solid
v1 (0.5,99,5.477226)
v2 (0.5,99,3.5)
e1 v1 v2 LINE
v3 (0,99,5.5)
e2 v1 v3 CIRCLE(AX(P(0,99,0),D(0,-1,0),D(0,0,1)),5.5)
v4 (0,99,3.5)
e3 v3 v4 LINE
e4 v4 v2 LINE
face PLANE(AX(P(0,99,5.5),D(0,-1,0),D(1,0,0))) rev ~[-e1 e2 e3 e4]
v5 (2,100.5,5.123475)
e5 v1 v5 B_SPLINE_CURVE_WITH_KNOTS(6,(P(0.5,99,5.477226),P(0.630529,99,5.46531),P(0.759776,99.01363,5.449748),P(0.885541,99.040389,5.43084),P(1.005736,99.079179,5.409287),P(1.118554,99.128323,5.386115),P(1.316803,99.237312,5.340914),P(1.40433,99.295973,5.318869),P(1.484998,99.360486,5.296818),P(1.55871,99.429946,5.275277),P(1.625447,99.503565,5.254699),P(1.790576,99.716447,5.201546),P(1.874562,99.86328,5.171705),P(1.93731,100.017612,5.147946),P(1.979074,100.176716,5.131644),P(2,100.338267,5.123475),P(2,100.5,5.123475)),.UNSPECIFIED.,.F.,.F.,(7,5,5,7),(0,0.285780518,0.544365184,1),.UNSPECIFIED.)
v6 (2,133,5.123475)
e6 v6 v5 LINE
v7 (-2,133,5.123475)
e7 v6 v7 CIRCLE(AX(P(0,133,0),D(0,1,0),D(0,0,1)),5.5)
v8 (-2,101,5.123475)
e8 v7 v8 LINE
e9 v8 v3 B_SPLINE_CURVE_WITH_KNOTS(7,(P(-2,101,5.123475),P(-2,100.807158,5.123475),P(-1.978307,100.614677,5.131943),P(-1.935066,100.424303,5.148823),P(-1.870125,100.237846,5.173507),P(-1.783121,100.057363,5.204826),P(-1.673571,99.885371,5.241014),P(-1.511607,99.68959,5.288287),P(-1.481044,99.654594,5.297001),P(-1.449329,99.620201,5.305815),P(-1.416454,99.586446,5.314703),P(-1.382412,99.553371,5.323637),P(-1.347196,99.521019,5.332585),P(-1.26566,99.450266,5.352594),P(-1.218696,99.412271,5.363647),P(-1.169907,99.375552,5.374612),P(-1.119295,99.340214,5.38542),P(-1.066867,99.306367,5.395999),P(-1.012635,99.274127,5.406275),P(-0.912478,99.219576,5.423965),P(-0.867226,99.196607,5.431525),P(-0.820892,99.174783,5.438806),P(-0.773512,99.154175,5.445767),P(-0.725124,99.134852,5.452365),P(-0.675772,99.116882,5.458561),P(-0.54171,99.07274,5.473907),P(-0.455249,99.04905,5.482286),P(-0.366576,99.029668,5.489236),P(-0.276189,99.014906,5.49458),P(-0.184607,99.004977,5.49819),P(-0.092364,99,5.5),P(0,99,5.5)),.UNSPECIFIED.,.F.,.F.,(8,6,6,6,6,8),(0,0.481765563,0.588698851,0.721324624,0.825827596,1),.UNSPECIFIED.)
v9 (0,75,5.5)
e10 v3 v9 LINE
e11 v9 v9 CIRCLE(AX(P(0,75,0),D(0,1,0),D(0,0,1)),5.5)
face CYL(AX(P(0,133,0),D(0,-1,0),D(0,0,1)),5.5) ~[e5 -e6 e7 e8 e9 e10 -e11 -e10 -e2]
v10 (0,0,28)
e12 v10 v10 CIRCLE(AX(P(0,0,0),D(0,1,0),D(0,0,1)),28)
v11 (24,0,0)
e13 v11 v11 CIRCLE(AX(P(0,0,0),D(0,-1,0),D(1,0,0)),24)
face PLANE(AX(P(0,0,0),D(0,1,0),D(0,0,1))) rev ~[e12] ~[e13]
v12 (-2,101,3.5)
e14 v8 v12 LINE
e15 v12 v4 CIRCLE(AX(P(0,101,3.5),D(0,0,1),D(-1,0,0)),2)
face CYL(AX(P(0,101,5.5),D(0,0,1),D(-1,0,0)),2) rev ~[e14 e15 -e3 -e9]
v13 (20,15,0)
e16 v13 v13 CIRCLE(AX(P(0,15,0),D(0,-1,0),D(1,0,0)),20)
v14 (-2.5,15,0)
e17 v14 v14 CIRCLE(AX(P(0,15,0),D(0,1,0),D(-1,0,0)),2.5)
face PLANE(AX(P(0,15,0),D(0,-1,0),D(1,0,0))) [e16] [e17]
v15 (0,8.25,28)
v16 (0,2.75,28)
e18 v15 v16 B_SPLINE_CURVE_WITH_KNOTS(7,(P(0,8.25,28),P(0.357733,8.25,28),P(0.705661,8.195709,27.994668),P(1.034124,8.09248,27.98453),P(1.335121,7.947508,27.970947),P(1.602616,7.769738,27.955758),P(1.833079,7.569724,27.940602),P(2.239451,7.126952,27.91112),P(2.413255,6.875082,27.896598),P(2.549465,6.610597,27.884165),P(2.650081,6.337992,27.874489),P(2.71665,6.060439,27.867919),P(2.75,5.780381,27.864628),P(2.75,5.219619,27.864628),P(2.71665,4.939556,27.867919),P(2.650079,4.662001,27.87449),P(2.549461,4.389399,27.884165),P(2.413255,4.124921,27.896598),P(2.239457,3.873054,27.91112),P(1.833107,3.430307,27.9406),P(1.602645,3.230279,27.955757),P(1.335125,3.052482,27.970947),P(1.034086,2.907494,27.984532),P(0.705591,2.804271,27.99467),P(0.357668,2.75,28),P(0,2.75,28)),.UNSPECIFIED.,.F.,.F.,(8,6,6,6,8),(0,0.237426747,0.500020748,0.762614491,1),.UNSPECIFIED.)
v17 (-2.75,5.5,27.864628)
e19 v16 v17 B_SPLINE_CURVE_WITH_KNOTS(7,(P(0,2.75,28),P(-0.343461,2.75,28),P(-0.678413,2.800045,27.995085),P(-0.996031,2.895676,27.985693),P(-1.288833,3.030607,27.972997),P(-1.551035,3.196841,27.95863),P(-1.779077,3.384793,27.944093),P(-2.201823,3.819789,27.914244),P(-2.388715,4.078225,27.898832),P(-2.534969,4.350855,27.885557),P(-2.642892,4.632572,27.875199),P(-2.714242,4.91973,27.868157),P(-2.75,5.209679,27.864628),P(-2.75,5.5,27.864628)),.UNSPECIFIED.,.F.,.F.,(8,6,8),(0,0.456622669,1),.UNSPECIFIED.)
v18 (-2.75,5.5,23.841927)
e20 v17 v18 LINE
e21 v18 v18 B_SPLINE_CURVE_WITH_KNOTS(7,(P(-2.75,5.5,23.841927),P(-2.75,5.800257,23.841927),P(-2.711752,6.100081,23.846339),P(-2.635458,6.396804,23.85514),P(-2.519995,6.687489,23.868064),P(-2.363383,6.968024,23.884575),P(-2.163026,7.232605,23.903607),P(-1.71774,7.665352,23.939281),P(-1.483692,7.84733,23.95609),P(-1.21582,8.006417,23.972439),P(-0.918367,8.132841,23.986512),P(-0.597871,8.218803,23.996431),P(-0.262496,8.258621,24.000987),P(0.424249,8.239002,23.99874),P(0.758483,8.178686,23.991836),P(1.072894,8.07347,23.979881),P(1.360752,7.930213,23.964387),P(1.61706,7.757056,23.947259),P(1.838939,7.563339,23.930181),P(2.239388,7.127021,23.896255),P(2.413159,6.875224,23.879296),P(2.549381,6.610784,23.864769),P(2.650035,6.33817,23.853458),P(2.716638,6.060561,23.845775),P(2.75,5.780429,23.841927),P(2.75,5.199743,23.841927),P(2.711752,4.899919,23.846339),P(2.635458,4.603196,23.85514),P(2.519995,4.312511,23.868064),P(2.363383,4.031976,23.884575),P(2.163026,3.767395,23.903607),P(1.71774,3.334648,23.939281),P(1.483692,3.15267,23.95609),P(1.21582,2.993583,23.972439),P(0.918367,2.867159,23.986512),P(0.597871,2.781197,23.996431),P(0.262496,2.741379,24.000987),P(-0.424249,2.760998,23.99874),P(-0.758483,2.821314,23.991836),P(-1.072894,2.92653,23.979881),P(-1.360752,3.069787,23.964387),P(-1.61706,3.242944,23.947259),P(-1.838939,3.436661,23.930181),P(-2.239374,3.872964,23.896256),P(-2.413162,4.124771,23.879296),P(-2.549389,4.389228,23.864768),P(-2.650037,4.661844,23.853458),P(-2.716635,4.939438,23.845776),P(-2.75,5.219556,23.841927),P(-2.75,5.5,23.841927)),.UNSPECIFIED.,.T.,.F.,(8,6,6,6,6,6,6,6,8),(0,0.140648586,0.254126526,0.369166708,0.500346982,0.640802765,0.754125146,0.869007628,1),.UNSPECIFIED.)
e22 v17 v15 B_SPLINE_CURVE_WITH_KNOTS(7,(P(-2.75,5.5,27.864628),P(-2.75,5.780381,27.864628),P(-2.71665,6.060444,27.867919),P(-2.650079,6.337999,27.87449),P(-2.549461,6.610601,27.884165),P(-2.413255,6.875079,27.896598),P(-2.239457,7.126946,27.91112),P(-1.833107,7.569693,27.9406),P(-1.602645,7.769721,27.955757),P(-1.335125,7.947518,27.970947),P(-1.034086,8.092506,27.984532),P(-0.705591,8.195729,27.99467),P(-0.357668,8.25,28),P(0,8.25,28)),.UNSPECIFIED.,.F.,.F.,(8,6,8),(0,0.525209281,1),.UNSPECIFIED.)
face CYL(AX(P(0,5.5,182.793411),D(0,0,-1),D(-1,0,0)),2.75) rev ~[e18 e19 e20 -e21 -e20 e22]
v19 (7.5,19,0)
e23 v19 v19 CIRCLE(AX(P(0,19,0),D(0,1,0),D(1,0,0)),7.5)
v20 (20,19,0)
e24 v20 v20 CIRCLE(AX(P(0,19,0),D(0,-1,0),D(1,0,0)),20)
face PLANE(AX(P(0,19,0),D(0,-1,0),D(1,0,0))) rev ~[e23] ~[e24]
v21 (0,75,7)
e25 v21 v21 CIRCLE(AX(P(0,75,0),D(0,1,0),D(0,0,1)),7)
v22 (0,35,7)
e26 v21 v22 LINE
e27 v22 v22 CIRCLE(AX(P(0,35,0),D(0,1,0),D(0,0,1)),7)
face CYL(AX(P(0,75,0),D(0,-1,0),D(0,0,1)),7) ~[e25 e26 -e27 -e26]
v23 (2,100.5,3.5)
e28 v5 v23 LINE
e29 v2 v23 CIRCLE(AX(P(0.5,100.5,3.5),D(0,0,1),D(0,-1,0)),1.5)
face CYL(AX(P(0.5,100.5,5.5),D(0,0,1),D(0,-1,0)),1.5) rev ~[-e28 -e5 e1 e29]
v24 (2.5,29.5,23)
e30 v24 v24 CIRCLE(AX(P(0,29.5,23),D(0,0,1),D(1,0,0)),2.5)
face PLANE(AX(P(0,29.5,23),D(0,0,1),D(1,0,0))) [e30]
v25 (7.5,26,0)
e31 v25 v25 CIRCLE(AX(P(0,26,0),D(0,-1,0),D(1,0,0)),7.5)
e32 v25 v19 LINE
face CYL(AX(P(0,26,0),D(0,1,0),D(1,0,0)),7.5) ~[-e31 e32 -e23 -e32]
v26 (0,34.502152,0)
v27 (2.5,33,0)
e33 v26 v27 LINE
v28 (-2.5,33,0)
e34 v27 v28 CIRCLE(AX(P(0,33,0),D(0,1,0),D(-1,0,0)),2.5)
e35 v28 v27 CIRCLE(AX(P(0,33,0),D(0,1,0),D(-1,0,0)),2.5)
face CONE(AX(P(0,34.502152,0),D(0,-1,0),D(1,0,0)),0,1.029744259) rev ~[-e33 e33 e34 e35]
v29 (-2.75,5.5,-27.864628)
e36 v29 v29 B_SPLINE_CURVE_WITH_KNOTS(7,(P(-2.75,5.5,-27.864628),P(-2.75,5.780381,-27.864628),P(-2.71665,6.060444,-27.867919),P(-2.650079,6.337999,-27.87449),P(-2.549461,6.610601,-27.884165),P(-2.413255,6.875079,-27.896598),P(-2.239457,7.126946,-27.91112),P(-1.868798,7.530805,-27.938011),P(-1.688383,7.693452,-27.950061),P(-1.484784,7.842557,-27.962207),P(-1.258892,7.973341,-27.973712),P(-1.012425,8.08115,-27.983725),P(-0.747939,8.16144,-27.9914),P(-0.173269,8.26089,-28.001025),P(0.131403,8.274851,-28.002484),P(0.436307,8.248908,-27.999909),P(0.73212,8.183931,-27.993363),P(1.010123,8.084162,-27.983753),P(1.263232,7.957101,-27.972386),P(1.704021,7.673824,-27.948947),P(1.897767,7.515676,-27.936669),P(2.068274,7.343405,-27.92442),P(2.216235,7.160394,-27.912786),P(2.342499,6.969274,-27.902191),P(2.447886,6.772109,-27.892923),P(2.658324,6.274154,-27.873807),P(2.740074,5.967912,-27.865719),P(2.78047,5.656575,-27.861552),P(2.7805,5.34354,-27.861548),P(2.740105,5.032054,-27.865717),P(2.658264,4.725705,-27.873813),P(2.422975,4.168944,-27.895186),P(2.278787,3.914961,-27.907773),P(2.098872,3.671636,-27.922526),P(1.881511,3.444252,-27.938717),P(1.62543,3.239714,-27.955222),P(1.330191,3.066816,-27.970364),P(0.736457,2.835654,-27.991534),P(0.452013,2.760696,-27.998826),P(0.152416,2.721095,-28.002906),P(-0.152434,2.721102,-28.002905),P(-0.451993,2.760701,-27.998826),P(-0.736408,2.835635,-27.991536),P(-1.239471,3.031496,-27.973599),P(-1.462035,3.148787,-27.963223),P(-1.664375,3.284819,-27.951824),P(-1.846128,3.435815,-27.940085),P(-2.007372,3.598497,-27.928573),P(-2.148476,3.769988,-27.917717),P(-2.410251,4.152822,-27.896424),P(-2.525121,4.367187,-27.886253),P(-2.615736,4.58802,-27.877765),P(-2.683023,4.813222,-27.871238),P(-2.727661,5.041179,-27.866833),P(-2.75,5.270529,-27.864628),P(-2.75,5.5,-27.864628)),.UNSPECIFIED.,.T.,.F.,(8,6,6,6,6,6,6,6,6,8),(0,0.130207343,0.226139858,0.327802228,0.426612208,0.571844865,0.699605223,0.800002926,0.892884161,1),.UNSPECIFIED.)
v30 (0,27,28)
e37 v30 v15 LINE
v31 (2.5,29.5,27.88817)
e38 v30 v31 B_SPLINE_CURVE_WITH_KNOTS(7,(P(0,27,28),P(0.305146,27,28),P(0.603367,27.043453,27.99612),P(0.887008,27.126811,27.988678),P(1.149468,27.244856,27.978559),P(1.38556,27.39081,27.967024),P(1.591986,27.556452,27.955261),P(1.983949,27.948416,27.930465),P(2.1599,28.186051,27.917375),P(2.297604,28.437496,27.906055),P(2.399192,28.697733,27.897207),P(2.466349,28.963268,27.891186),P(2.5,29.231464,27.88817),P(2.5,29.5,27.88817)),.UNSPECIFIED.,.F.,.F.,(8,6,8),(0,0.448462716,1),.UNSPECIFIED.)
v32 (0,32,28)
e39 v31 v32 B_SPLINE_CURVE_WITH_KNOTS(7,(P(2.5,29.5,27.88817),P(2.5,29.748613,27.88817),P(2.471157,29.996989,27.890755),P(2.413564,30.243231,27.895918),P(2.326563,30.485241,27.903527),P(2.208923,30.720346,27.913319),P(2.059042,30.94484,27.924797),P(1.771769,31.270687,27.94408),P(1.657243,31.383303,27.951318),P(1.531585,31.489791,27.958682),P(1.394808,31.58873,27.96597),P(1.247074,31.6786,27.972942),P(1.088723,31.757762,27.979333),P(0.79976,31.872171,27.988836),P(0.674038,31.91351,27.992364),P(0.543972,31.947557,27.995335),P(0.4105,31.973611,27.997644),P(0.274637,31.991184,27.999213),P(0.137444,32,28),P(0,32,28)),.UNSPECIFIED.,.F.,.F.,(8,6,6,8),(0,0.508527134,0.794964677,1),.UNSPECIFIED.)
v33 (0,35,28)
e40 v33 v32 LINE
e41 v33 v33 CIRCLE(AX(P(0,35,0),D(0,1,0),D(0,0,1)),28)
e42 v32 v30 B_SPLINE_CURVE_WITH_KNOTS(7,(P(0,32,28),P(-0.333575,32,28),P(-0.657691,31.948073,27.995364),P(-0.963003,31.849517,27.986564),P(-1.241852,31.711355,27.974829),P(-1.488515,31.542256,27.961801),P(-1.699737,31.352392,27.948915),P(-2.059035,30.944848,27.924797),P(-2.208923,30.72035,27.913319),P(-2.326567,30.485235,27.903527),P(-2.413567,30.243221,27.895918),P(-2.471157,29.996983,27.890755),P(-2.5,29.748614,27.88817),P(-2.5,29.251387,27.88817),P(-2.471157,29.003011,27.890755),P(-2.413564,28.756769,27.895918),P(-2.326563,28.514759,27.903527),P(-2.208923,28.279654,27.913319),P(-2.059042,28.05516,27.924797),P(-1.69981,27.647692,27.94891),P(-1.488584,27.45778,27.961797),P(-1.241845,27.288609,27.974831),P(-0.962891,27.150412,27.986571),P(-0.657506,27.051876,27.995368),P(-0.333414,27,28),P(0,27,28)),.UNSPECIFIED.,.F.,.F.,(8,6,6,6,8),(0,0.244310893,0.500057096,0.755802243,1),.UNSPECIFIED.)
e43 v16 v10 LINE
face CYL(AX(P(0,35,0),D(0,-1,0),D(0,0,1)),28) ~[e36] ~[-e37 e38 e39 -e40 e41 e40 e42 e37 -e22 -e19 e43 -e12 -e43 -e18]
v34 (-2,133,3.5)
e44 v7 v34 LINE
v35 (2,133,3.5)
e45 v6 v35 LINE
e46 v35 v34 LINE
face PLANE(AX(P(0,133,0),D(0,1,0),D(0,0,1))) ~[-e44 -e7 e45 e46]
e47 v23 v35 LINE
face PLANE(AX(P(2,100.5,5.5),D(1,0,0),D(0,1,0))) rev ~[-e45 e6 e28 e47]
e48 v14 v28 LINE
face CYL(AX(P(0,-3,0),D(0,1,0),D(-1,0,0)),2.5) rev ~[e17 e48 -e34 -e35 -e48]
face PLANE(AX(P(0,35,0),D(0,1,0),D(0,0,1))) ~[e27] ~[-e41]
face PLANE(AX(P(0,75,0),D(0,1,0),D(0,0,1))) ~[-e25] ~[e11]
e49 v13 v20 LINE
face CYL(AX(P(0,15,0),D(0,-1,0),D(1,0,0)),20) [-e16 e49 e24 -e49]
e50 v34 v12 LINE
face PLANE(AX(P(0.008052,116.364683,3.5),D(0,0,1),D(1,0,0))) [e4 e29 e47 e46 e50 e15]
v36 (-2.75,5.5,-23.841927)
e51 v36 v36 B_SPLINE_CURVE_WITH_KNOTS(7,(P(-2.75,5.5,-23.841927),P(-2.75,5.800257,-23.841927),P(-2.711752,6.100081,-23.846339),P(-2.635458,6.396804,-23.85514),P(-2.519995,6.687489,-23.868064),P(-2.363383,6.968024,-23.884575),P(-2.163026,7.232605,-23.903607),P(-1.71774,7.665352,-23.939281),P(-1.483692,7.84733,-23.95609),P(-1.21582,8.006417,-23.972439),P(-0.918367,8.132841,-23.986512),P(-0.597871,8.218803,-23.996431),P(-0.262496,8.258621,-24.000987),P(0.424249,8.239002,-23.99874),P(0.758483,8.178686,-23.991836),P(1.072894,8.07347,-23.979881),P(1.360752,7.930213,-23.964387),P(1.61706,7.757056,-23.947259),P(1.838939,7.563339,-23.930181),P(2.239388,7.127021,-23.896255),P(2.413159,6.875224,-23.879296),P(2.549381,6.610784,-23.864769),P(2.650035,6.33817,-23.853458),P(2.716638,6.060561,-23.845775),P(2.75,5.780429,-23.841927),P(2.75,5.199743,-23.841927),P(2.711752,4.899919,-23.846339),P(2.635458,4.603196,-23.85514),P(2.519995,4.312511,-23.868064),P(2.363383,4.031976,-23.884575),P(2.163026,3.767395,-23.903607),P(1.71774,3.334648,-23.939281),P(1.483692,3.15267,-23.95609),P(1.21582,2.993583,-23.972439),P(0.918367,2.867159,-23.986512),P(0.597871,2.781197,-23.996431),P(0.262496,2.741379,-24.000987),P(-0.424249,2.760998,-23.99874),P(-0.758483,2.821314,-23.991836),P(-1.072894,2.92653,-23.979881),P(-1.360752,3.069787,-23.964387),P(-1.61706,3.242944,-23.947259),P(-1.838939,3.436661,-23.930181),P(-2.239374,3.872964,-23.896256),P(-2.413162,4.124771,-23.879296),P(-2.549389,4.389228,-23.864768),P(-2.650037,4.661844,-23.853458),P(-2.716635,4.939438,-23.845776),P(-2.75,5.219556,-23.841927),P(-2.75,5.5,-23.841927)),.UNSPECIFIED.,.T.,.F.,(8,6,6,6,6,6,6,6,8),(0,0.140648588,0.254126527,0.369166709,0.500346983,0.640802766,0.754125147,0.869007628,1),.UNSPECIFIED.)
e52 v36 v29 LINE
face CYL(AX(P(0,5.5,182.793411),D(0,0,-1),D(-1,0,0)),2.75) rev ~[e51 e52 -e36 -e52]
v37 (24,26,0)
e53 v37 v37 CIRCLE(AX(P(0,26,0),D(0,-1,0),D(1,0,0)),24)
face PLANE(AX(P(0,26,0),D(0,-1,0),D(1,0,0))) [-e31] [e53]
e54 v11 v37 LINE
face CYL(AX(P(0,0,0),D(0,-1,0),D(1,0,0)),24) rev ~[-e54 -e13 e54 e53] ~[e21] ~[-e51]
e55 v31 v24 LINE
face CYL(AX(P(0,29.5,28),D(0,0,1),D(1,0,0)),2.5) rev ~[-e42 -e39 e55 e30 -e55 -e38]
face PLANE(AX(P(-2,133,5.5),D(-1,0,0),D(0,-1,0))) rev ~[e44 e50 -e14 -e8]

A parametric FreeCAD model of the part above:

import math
import FreeCAD as App
import Part
import Sketcher

V = App.Vector
Q = App.Units.Quantity


def add_polygon(sketch, points):
    """Adds a closed chain of lines whose ends are joined by coincident constraints."""
    first, n = sketch.GeometryCount, len(points)
    for a, b in zip(points, points[1:] + points[:1]):
        sketch.addGeometry(Part.LineSegment(App.Vector(*a, 0), App.Vector(*b, 0)), False)
    for i in range(n):
        sketch.addConstraint(Sketcher.Constraint("Coincident", first + i, 2, first + (i + 1) % n, 1))

doc = App.newDocument("Part")
body = doc.addObject("PartDesign::Body", "Body")

# Sketch on YZ plane
sketch1 = body.newObject("Sketcher::SketchObject", "Sketch")
sketch1.AttachmentSupport = (doc.getObject("YZ_Plane"), [""])
sketch1.MapMode = "FlatFace"
add_polygon(sketch1, [(0, 28), (0, 0), (133, 0), (133, 5.5), (75, 5.5), (75, 7), (35, 7), (35, 28)])  # lines 0-7
sketch1.addConstraint([
    Sketcher.Constraint("Vertical", 0),
    Sketcher.Constraint("Horizontal", 1),
    Sketcher.Constraint("Vertical", 2),
    Sketcher.Constraint("Horizontal", 3),
    Sketcher.Constraint("Vertical", 4),
    Sketcher.Constraint("Horizontal", 5),
    Sketcher.Constraint("Vertical", 6),
    Sketcher.Constraint("Horizontal", 7),
    Sketcher.Constraint("Coincident", 0, 2, -1, 1),
    Sketcher.Constraint("DistanceX", 1, 1, 1, 2, Q("133 mm")),
    Sketcher.Constraint("DistanceX", 3, 2, 3, 1, Q("58 mm")),
    Sketcher.Constraint("DistanceX", 5, 2, 5, 1, Q("40 mm")),
    Sketcher.Constraint("DistanceY", 0, 2, 0, 1, Q("28 mm")),
    Sketcher.Constraint("DistanceY", 6, 1, 6, 2, Q("21 mm")),
    Sketcher.Constraint("DistanceY", 2, 1, 2, 2, Q("5.5 mm")),
])
revolution = body.newObject("PartDesign::Revolution", "Revolution")
revolution.Profile = sketch1
revolution.ReferenceAxis = (sketch1, ["H_Axis"])
revolution.Angle = 360

# Sketch on XY plane
sketch2 = body.newObject("Sketcher::SketchObject", "Sketch001")
sketch2.AttachmentSupport = (doc.getObject("XY_Plane"), [""])
sketch2.MapMode = "FlatFace"
sketch2.AttachmentOffset = App.Placement(V(0, 0, 5.5), App.Rotation())
sketch2.addGeometry([
    Part.LineSegment(V(0, 99, 0), V(0.5, 99, 0)),  # 0
    Part.ArcOfCircle(Part.Circle(V(0.5, 100.5, 0), V(0, 0, 1), 1.5), math.radians(-90), math.radians(0)),  # 1
    Part.LineSegment(V(2, 100.5, 0), V(2, 133, 0)),  # 2
    Part.LineSegment(V(2, 133, 0), V(-2, 133, 0)),  # 3
    Part.LineSegment(V(-2, 133, 0), V(-2, 101, 0)),  # 4
    Part.ArcOfCircle(Part.Circle(V(0, 101, 0), V(0, 0, 1), 2), math.radians(180), math.radians(270)),  # 5
], False)
sketch2.addConstraint([
    Sketcher.Constraint("Tangent", 0, 2, 1, 1),
    Sketcher.Constraint("Tangent", 1, 2, 2, 1),
    Sketcher.Constraint("Coincident", 2, 2, 3, 1),
    Sketcher.Constraint("Coincident", 3, 2, 4, 1),
    Sketcher.Constraint("Tangent", 4, 2, 5, 1),
    Sketcher.Constraint("Tangent", 5, 2, 0, 1),
    Sketcher.Constraint("Horizontal", 0),
    Sketcher.Constraint("Vertical", 2),
    Sketcher.Constraint("Horizontal", 3),
    Sketcher.Constraint("Vertical", 4),
    Sketcher.Constraint("PointOnObject", 5, 3, -2),
    Sketcher.Constraint("Radius", 5, Q("2 mm")),
    Sketcher.Constraint("Radius", 1, Q("1.5 mm")),
    Sketcher.Constraint("DistanceX", 3, 2, 3, 1, Q("4 mm")),
    Sketcher.Constraint("DistanceY", 4, 2, 4, 1, Q("32 mm")),
    Sketcher.Constraint("DistanceY", -1, 1, 5, 3, Q("101 mm")),
])
pocket1 = body.newObject("PartDesign::Pocket", "Pocket")
pocket1.Profile = sketch2
pocket1.Length = 2

# Sketch on XZ plane
sketch3 = body.newObject("Sketcher::SketchObject", "Sketch002")
sketch3.AttachmentSupport = (doc.getObject("XZ_Plane"), [""])
sketch3.MapMode = "FlatFace"
sketch3.addGeometry(Part.Circle(V(0, 0, 0), V(0, 0, 1), 24), False)
sketch3.addConstraint([
    Sketcher.Constraint("Coincident", 0, 3, -1, 1),
    Sketcher.Constraint("Diameter", 0, Q("48 mm")),
])
pocket2 = body.newObject("PartDesign::Pocket", "Pocket001")
pocket2.Profile = sketch3
pocket2.Length = 26

# Sketch on XZ plane
sketch4 = body.newObject("Sketcher::SketchObject", "Sketch003")
sketch4.AttachmentSupport = (doc.getObject("XZ_Plane"), [""])
sketch4.MapMode = "FlatFace"
sketch4.AttachmentOffset = App.Placement(V(0, 0, -26), App.Rotation())
sketch4.addGeometry(Part.Circle(V(0, 0, 0), V(0, 0, 1), 7.5), False)
sketch4.addConstraint([
    Sketcher.Constraint("Coincident", 0, 3, -1, 1),
    Sketcher.Constraint("Diameter", 0, Q("15 mm")),
])
pad1 = body.newObject("PartDesign::Pad", "Pad")
pad1.Profile = sketch4
pad1.Length = 11

# Sketch on XZ plane
sketch5 = body.newObject("Sketcher::SketchObject", "Sketch004")
sketch5.AttachmentSupport = (doc.getObject("XZ_Plane"), [""])
sketch5.MapMode = "FlatFace"
sketch5.AttachmentOffset = App.Placement(V(0, 0, -15), App.Rotation())
sketch5.addGeometry(Part.Circle(V(0, 0, 0), V(0, 0, 1), 20), False)
sketch5.addConstraint([
    Sketcher.Constraint("Coincident", 0, 3, -1, 1),
    Sketcher.Constraint("Diameter", 0, Q("40 mm")),
])
pad2 = body.newObject("PartDesign::Pad", "Pad001")
pad2.Profile = sketch5
pad2.Length = 4
pad2.Reversed = True

# Sketch on XY plane
sketch6 = body.newObject("Sketcher::SketchObject", "Sketch005")
sketch6.AttachmentSupport = (doc.getObject("XY_Plane"), [""])
sketch6.MapMode = "FlatFace"
sketch6.AttachmentOffset = App.Placement(V(0, 0, 28), App.Rotation())
sketch6.addGeometry(Part.Circle(V(0, 5.5, 0), V(0, 0, 1), 2.75), False)
sketch6.addConstraint([
    Sketcher.Constraint("PointOnObject", 0, 3, -2),
    Sketcher.Constraint("Diameter", 0, Q("5.5 mm")),
    Sketcher.Constraint("DistanceY", -1, 1, 0, 3, Q("5.5 mm")),
])
doc.recompute()
hole = body.newObject("PartDesign::Hole", "Hole")
hole.Profile = sketch6
hole.ThreadType = "None"
hole.Diameter = 5.5
hole.DepthType = "ThroughAll"

# Sketch on XY plane
sketch7 = body.newObject("Sketcher::SketchObject", "Sketch006")
sketch7.AttachmentSupport = (doc.getObject("XY_Plane"), [""])
sketch7.MapMode = "FlatFace"
sketch7.AttachmentOffset = App.Placement(V(0, 0, 28), App.Rotation())
sketch7.addGeometry(Part.Circle(V(0, 29.5, 0), V(0, 0, 1), 2.5), False)
sketch7.addConstraint([
    Sketcher.Constraint("PointOnObject", 0, 3, -2),
    Sketcher.Constraint("Diameter", 0, Q("5 mm")),
    Sketcher.Constraint("DistanceY", -1, 1, 0, 3, Q("29.5 mm")),
])
pocket3 = body.newObject("PartDesign::Pocket", "Pocket002")
pocket3.Profile = sketch7
pocket3.Length = 5

# Sketch on XZ plane
sketch8 = body.newObject("Sketcher::SketchObject", "Sketch007")
sketch8.AttachmentSupport = (doc.getObject("XZ_Plane"), [""])
sketch8.MapMode = "FlatFace"
sketch8.AttachmentOffset = App.Placement(V(0, 0, -15), App.Rotation())
sketch8.addGeometry(Part.Circle(V(0, 0, 0), V(0, 0, 1), 2.5), False)
sketch8.addConstraint([
    Sketcher.Constraint("Coincident", 0, 3, -1, 1),
    Sketcher.Constraint("Diameter", 0, Q("5 mm")),
])
doc.recompute()
hole2 = body.newObject("PartDesign::Hole", "Hole001")
hole2.Profile = sketch8
hole2.ThreadType = "None"
hole2.Diameter = 5
hole2.DepthType = "Dimension"
hole2.Depth = 18
hole2.DrillPoint = "Angled"
hole2.DrillPointAngle = 118

doc.recompute()
